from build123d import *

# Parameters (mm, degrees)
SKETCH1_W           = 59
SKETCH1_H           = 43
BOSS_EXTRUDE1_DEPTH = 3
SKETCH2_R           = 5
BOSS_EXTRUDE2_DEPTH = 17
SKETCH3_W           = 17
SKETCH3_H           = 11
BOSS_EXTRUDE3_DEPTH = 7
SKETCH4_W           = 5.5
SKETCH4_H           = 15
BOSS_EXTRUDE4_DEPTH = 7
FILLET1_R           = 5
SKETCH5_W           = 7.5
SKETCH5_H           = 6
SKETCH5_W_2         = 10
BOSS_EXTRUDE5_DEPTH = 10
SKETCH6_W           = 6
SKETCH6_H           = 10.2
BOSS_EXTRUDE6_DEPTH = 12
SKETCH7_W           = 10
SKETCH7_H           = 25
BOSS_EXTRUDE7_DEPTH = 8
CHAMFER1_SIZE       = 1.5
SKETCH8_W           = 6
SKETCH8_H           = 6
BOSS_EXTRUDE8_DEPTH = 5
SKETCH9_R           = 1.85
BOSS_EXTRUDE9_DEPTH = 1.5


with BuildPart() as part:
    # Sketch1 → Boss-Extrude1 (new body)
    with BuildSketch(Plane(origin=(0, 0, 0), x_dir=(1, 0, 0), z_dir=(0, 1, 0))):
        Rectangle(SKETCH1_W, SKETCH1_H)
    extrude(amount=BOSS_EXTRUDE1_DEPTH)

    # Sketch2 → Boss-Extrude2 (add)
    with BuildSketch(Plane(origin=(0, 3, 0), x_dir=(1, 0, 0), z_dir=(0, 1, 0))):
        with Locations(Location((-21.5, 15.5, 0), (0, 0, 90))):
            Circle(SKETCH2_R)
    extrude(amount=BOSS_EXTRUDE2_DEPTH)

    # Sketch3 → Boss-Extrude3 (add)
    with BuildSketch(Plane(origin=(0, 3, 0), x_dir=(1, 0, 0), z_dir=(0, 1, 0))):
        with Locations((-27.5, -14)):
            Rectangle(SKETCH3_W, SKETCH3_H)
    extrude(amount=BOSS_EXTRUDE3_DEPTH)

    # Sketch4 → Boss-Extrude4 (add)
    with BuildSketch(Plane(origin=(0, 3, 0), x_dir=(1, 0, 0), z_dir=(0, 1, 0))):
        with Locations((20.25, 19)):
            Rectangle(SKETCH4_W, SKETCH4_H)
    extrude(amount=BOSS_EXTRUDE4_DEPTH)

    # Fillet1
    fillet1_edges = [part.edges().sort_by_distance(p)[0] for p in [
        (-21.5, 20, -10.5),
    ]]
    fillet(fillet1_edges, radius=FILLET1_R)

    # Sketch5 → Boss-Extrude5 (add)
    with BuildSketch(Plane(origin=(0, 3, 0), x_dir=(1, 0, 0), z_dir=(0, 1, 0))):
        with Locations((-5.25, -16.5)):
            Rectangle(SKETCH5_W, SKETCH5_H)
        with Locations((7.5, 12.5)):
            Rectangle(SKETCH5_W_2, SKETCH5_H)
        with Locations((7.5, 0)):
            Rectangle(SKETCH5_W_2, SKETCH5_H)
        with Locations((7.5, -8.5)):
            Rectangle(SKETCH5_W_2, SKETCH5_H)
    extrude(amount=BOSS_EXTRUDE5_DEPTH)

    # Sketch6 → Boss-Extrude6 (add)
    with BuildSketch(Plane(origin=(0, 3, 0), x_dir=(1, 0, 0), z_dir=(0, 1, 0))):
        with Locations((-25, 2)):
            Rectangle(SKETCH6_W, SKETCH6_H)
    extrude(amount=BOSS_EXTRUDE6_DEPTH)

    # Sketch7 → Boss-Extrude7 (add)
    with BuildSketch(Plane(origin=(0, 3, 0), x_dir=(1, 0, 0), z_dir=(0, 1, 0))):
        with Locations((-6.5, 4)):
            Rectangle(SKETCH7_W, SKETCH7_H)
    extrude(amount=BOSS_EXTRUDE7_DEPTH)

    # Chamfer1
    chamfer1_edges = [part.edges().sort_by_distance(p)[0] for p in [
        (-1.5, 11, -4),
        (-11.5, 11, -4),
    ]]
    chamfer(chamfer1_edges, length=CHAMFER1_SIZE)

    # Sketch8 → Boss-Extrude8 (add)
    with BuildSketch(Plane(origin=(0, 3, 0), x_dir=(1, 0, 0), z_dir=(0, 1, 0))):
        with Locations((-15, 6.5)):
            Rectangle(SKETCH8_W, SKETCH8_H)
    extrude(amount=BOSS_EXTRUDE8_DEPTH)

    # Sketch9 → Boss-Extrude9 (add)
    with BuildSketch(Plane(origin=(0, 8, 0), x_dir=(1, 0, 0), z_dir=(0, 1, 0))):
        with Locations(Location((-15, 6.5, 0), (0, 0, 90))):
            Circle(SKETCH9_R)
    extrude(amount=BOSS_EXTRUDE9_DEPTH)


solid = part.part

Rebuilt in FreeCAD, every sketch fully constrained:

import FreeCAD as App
import Part
import Sketcher
from FreeCAD import Vector


def edges_at(feature, points):
    """Names of the edges that pass closest to the given points."""
    edges = feature.Shape.Edges
    near = lambda p: min(range(len(edges)), key=lambda i: edges[i].distToShape(Part.Vertex(*p))[0])
    return sorted({f"Edge{near(p) + 1}" for p in points})

doc = App.newDocument("Part")
body = doc.addObject("PartDesign::Body", "Body")

sketch1 = body.newObject("Sketcher::SketchObject", "Sketch")
sketch1.AttachmentSupport = (doc.getObject("XZ_Plane"), [""])
sketch1.MapMode = "FlatFace"
sketch1.addGeometry(Part.LineSegment(Vector(-30, -22, 0), Vector(-30, 22, 0)), False)
sketch1.addGeometry(Part.LineSegment(Vector(-30, 22, 0), Vector(30, 22, 0)), False)
sketch1.addGeometry(Part.LineSegment(Vector(30, 22, 0), Vector(30, -22, 0)), False)
sketch1.addGeometry(Part.LineSegment(Vector(30, -22, 0), Vector(-30, -22, 0)), False)
sketch1.addConstraint(Sketcher.Constraint("Coincident", 0, 2, 1, 1))
sketch1.addConstraint(Sketcher.Constraint("Coincident", 1, 2, 2, 1))
sketch1.addConstraint(Sketcher.Constraint("Coincident", 2, 2, 3, 1))
sketch1.addConstraint(Sketcher.Constraint("Coincident", 3, 2, 0, 1))
sketch1.addConstraint(Sketcher.Constraint("Vertical", 0))
sketch1.addConstraint(Sketcher.Constraint("Horizontal", 1))
sketch1.addConstraint(Sketcher.Constraint("Vertical", 2))
sketch1.addConstraint(Sketcher.Constraint("Horizontal", 3))
sketch1.addConstraint(Sketcher.Constraint("Symmetric", 0, 2, 2, 2, -1, 1))
sketch1.addConstraint(Sketcher.Constraint("DistanceX", 1, 1, 1, 2, 59.0))
sketch1.addConstraint(Sketcher.Constraint("DistanceY", 0, 1, 0, 2, 43.0))
pad1 = body.newObject("PartDesign::Pad", "Pad")
pad1.Profile = sketch1
pad1.Length = 3
pad1.Reversed = True

sketch2 = body.newObject("Sketcher::SketchObject", "Sketch001")
sketch2.AttachmentSupport = (doc.getObject("XZ_Plane"), [""])
sketch2.MapMode = "FlatFace"
sketch2.AttachmentOffset = App.Placement(Vector(0, 0, -3), App.Rotation())
sketch2.addGeometry(Part.Circle(Vector(-22, -16, 0), Vector(0, 0, 1), 5), False)
sketch2.addConstraint(Sketcher.Constraint("Diameter", 0, 10.0))
sketch2.addConstraint(Sketcher.Constraint("DistanceX", 0, 3, -1, 1, 21.5))
sketch2.addConstraint(Sketcher.Constraint("DistanceY", 0, 3, -1, 1, 15.5))
pad2 = body.newObject("PartDesign::Pad", "Pad001")
pad2.Profile = sketch2
pad2.Length = 17
pad2.Reversed = True

sketch3 = body.newObject("Sketcher::SketchObject", "Sketch002")
sketch3.AttachmentSupport = (doc.getObject("XZ_Plane"), [""])
sketch3.MapMode = "FlatFace"
sketch3.AttachmentOffset = App.Placement(Vector(0, 0, -3), App.Rotation())
sketch3.addGeometry(Part.LineSegment(Vector(-36, 8, 0), Vector(-36, 20, 0)), False)
sketch3.addGeometry(Part.LineSegment(Vector(-36, 20, 0), Vector(-19, 20, 0)), False)
sketch3.addGeometry(Part.LineSegment(Vector(-19, 20, 0), Vector(-19, 8, 0)), False)
sketch3.addGeometry(Part.LineSegment(Vector(-19, 8, 0), Vector(-36, 8, 0)), False)
sketch3.addConstraint(Sketcher.Constraint("Coincident", 0, 2, 1, 1))
sketch3.addConstraint(Sketcher.Constraint("Coincident", 1, 2, 2, 1))
sketch3.addConstraint(Sketcher.Constraint("Coincident", 2, 2, 3, 1))
sketch3.addConstraint(Sketcher.Constraint("Coincident", 3, 2, 0, 1))
sketch3.addConstraint(Sketcher.Constraint("Vertical", 0))
sketch3.addConstraint(Sketcher.Constraint("Horizontal", 1))
sketch3.addConstraint(Sketcher.Constraint("Vertical", 2))
sketch3.addConstraint(Sketcher.Constraint("Horizontal", 3))
sketch3.addConstraint(Sketcher.Constraint("DistanceX", 1, 1, 1, 2, 17.0))
sketch3.addConstraint(Sketcher.Constraint("DistanceY", 0, 1, 0, 2, 11.0))
sketch3.addConstraint(Sketcher.Constraint("DistanceX", 0, 2, -1, 1, 36.0))
sketch3.addConstraint(Sketcher.Constraint("DistanceY", -1, 1, 0, 2, 19.5))
pad3 = body.newObject("PartDesign::Pad", "Pad002")
pad3.Profile = sketch3
pad3.Length = 7
pad3.Reversed = True

sketch4 = body.newObject("Sketcher::SketchObject", "Sketch003")
sketch4.AttachmentSupport = (doc.getObject("XZ_Plane"), [""])
sketch4.MapMode = "FlatFace"
sketch4.AttachmentOffset = App.Placement(Vector(0, 0, -3), App.Rotation())
sketch4.addGeometry(Part.LineSegment(Vector(18, -26, 0), Vector(18, -12, 0)), False)
sketch4.addGeometry(Part.LineSegment(Vector(18, -12, 0), Vector(23, -12, 0)), False)
sketch4.addGeometry(Part.LineSegment(Vector(23, -12, 0), Vector(23, -26, 0)), False)
sketch4.addGeometry(Part.LineSegment(Vector(23, -26, 0), Vector(18, -26, 0)), False)
sketch4.addConstraint(Sketcher.Constraint("Coincident", 0, 2, 1, 1))
sketch4.addConstraint(Sketcher.Constraint("Coincident", 1, 2, 2, 1))
sketch4.addConstraint(Sketcher.Constraint("Coincident", 2, 2, 3, 1))
sketch4.addConstraint(Sketcher.Constraint("Coincident", 3, 2, 0, 1))
sketch4.addConstraint(Sketcher.Constraint("Vertical", 0))
sketch4.addConstraint(Sketcher.Constraint("Horizontal", 1))
sketch4.addConstraint(Sketcher.Constraint("Vertical", 2))
sketch4.addConstraint(Sketcher.Constraint("Horizontal", 3))
sketch4.addConstraint(Sketcher.Constraint("DistanceY", 0, 1, 0, 2, 15.0))
sketch4.addConstraint(Sketcher.Constraint("DistanceX", 1, 1, 1, 2, 5.5))
sketch4.addConstraint(Sketcher.Constraint("DistanceX", -1, 1, 1, 2, 23.0))
sketch4.addConstraint(Sketcher.Constraint("DistanceY", 0, 2, -1, 1, 11.5))
pad4 = body.newObject("PartDesign::Pad", "Pad003")
pad4.Profile = sketch4
pad4.Length = 7
pad4.Reversed = True
doc.recompute()

fillet = body.newObject("PartDesign::Fillet", "Fillet")
fillet.Base = (pad4, edges_at(pad4, [(-21.5, 20, -10.5)]))
fillet.Radius = 5

sketch5 = body.newObject("Sketcher::SketchObject", "Sketch004")
sketch5.AttachmentSupport = (doc.getObject("XZ_Plane"), [""])
sketch5.MapMode = "FlatFace"
sketch5.AttachmentOffset = App.Placement(Vector(0, 0, -3), App.Rotation())
sketch5.addGeometry(Part.LineSegment(Vector(-9, 14, 0), Vector(-9, 20, 0)), False)
sketch5.addGeometry(Part.LineSegment(Vector(-9, 20, 0), Vector(-2, 20, 0)), False)
sketch5.addGeometry(Part.LineSegment(Vector(-2, 20, 0), Vector(-2, 14, 0)), False)
sketch5.addGeometry(Part.LineSegment(Vector(-2, 14, 0), Vector(-9, 14, 0)), False)
sketch5.addGeometry(Part.LineSegment(Vector(2, -16, 0), Vector(2, -10, 0)), False)
sketch5.addGeometry(Part.LineSegment(Vector(2, -10, 0), Vector(12, -10, 0)), False)
sketch5.addGeometry(Part.LineSegment(Vector(12, -10, 0), Vector(12, -16, 0)), False)
sketch5.addGeometry(Part.LineSegment(Vector(12, -16, 0), Vector(2, -16, 0)), False)
sketch5.addGeometry(Part.LineSegment(Vector(2, -3, 0), Vector(2, 3, 0)), False)
sketch5.addGeometry(Part.LineSegment(Vector(2, 3, 0), Vector(12, 3, 0)), False)
sketch5.addGeometry(Part.LineSegment(Vector(12, 3, 0), Vector(12, -3, 0)), False)
sketch5.addGeometry(Part.LineSegment(Vector(12, -3, 0), Vector(2, -3, 0)), False)
sketch5.addGeometry(Part.LineSegment(Vector(2, 6, 0), Vector(2, 12, 0)), False)
sketch5.addGeometry(Part.LineSegment(Vector(2, 12, 0), Vector(12, 12, 0)), False)
sketch5.addGeometry(Part.LineSegment(Vector(12, 12, 0), Vector(12, 6, 0)), False)
sketch5.addGeometry(Part.LineSegment(Vector(12, 6, 0), Vector(2, 6, 0)), False)
sketch5.addConstraint(Sketcher.Constraint("Coincident", 0, 2, 1, 1))
sketch5.addConstraint(Sketcher.Constraint("Coincident", 1, 2, 2, 1))
sketch5.addConstraint(Sketcher.Constraint("Coincident", 2, 2, 3, 1))
sketch5.addConstraint(Sketcher.Constraint("Coincident", 3, 2, 0, 1))
sketch5.addConstraint(Sketcher.Constraint("Coincident", 4, 2, 5, 1))
sketch5.addConstraint(Sketcher.Constraint("Coincident", 5, 2, 6, 1))
sketch5.addConstraint(Sketcher.Constraint("Coincident", 6, 2, 7, 1))
sketch5.addConstraint(Sketcher.Constraint("Coincident", 7, 2, 4, 1))
sketch5.addConstraint(Sketcher.Constraint("Coincident", 8, 2, 9, 1))
sketch5.addConstraint(Sketcher.Constraint("Coincident", 9, 2, 10, 1))
sketch5.addConstraint(Sketcher.Constraint("Coincident", 10, 2, 11, 1))
sketch5.addConstraint(Sketcher.Constraint("Coincident", 11, 2, 8, 1))
sketch5.addConstraint(Sketcher.Constraint("Coincident", 12, 2, 13, 1))
sketch5.addConstraint(Sketcher.Constraint("Coincident", 13, 2, 14, 1))
sketch5.addConstraint(Sketcher.Constraint("Coincident", 14, 2, 15, 1))
sketch5.addConstraint(Sketcher.Constraint("Coincident", 15, 2, 12, 1))
sketch5.addConstraint(Sketcher.Constraint("Vertical", 0))
sketch5.addConstraint(Sketcher.Constraint("Horizontal", 1))
sketch5.addConstraint(Sketcher.Constraint("Vertical", 2))
sketch5.addConstraint(Sketcher.Constraint("Horizontal", 3))
sketch5.addConstraint(Sketcher.Constraint("Vertical", 4))
sketch5.addConstraint(Sketcher.Constraint("Horizontal", 5))
sketch5.addConstraint(Sketcher.Constraint("Vertical", 6))
sketch5.addConstraint(Sketcher.Constraint("Horizontal", 7))
sketch5.addConstraint(Sketcher.Constraint("Vertical", 8))
sketch5.addConstraint(Sketcher.Constraint("Horizontal", 9))
sketch5.addConstraint(Sketcher.Constraint("Vertical", 10))
sketch5.addConstraint(Sketcher.Constraint("Horizontal", 11))
sketch5.addConstraint(Sketcher.Constraint("Vertical", 12))
sketch5.addConstraint(Sketcher.Constraint("Horizontal", 13))
sketch5.addConstraint(Sketcher.Constraint("Vertical", 14))
sketch5.addConstraint(Sketcher.Constraint("Horizontal", 15))
sketch5.addConstraint(Sketcher.Constraint("Vertical", 7, 2, 8, 2))
sketch5.addConstraint(Sketcher.Constraint("Vertical", 6, 2, 9, 2))
sketch5.addConstraint(Sketcher.Constraint("Vertical", 11, 2, 12, 2))
sketch5.addConstraint(Sketcher.Constraint("Vertical", 10, 2, 13, 2))
sketch5.addConstraint(Sketcher.Constraint("Equal", 2, 4))
sketch5.addConstraint(Sketcher.Constraint("Equal", 6, 8))
sketch5.addConstraint(Sketcher.Constraint("Equal", 10, 12))
sketch5.addConstraint(Sketcher.Constraint("DistanceX", 5, 1, 5, 2, 10.0))
sketch5.addConstraint(Sketcher.Constraint("DistanceY", 0, 1, 0, 2, 6.0))
sketch5.addConstraint(Sketcher.Constraint("DistanceX", 1, 1, 1, 2, 7.5))
sketch5.addConstraint(Sketcher.Constraint("DistanceX", 0, 2, -1, 1, 9.0))
sketch5.addConstraint(Sketcher.Constraint("DistanceY", -1, 1, 8, 2, 3.0))
sketch5.addConstraint(Sketcher.Constraint("DistanceX", 2, 2, 4, 2, 4.0))
sketch5.addConstraint(Sketcher.Constraint("DistanceY", 4, 2, 2, 2, 23.0))
sketch5.addConstraint(Sketcher.Constraint("DistanceY", 12, 2, 2, 2, 2.0))
sketch5.addConstraint(Sketcher.Constraint("DistanceY", -1, 1, 0, 2, 19.5))
pad5 = body.newObject("PartDesign::Pad", "Pad004")
pad5.Profile = sketch5
pad5.Length = 10
pad5.Reversed = True

sketch6 = body.newObject("Sketcher::SketchObject", "Sketch005")
sketch6.AttachmentSupport = (doc.getObject("XZ_Plane"), [""])
sketch6.MapMode = "FlatFace"
sketch6.AttachmentOffset = App.Placement(Vector(0, 0, -3), App.Rotation())
sketch6.addGeometry(Part.LineSegment(Vector(-28, -7, 0), Vector(-28, 3, 0)), False)
sketch6.addGeometry(Part.LineSegment(Vector(-28, 3, 0), Vector(-22, 3, 0)), False)
sketch6.addGeometry(Part.LineSegment(Vector(-22, 3, 0), Vector(-22, -7, 0)), False)
sketch6.addGeometry(Part.LineSegment(Vector(-22, -7, 0), Vector(-28, -7, 0)), False)
sketch6.addConstraint(Sketcher.Constraint("Coincident", 0, 2, 1, 1))
sketch6.addConstraint(Sketcher.Constraint("Coincident", 1, 2, 2, 1))
sketch6.addConstraint(Sketcher.Constraint("Coincident", 2, 2, 3, 1))
sketch6.addConstraint(Sketcher.Constraint("Coincident", 3, 2, 0, 1))
sketch6.addConstraint(Sketcher.Constraint("Vertical", 0))
sketch6.addConstraint(Sketcher.Constraint("Horizontal", 1))
sketch6.addConstraint(Sketcher.Constraint("Vertical", 2))
sketch6.addConstraint(Sketcher.Constraint("Horizontal", 3))
sketch6.addConstraint(Sketcher.Constraint("DistanceX", 1, 1, 1, 2, 6.0))
sketch6.addConstraint(Sketcher.Constraint("DistanceY", 0, 1, 0, 2, 10.2))
sketch6.addConstraint(Sketcher.Constraint("DistanceX", 0, 2, -1, 1, 28.0))
sketch6.addConstraint(Sketcher.Constraint("DistanceY", -1, 1, 0, 2, 3.1))
pad6 = body.newObject("PartDesign::Pad", "Pad005")
pad6.Profile = sketch6
pad6.Length = 12
pad6.Reversed = True

sketch7 = body.newObject("Sketcher::SketchObject", "Sketch006")
sketch7.AttachmentSupport = (doc.getObject("XZ_Plane"), [""])
sketch7.MapMode = "FlatFace"
sketch7.AttachmentOffset = App.Placement(Vector(0, 0, -3), App.Rotation())
sketch7.addGeometry(Part.LineSegment(Vector(-12, -16, 0), Vector(-12, 8, 0)), False)
sketch7.addGeometry(Part.LineSegment(Vector(-12, 8, 0), Vector(-2, 8, 0)), False)
sketch7.addGeometry(Part.LineSegment(Vector(-2, 8, 0), Vector(-2, -16, 0)), False)
sketch7.addGeometry(Part.LineSegment(Vector(-2, -16, 0), Vector(-12, -16, 0)), False)
sketch7.addConstraint(Sketcher.Constraint("Coincident", 0, 2, 1, 1))
sketch7.addConstraint(Sketcher.Constraint("Coincident", 1, 2, 2, 1))
sketch7.addConstraint(Sketcher.Constraint("Coincident", 2, 2, 3, 1))
sketch7.addConstraint(Sketcher.Constraint("Coincident", 3, 2, 0, 1))
sketch7.addConstraint(Sketcher.Constraint("Vertical", 0))
sketch7.addConstraint(Sketcher.Constraint("Horizontal", 1))
sketch7.addConstraint(Sketcher.Constraint("Vertical", 2))
sketch7.addConstraint(Sketcher.Constraint("Horizontal", 3))
sketch7.addConstraint(Sketcher.Constraint("DistanceX", 1, 1, 1, 2, 10.0))
sketch7.addConstraint(Sketcher.Constraint("DistanceY", 0, 1, 0, 2, 25.0))
sketch7.addConstraint(Sketcher.Constraint("DistanceX", 0, 2, -1, 1, 11.5))
sketch7.addConstraint(Sketcher.Constraint("DistanceY", -1, 1, 0, 2, 8.5))
pad7 = body.newObject("PartDesign::Pad", "Pad006")
pad7.Profile = sketch7
pad7.Length = 8
pad7.Reversed = True
doc.recompute()

chamfer = body.newObject("PartDesign::Chamfer", "Chamfer")
chamfer.Base = (pad7, edges_at(pad7, [(-1.5, 11, -4), (-11.5, 11, -4)]))
chamfer.Size = 1.5

sketch8 = body.newObject("Sketcher::SketchObject", "Sketch007")
sketch8.AttachmentSupport = (doc.getObject("XZ_Plane"), [""])
sketch8.MapMode = "FlatFace"
sketch8.AttachmentOffset = App.Placement(Vector(0, 0, -3), App.Rotation())
sketch8.addGeometry(Part.LineSegment(Vector(-18, -10, 0), Vector(-18, -4, 0)), False)
sketch8.addGeometry(Part.LineSegment(Vector(-18, -4, 0), Vector(-12, -4, 0)), False)
sketch8.addGeometry(Part.LineSegment(Vector(-12, -4, 0), Vector(-12, -10, 0)), False)
sketch8.addGeometry(Part.LineSegment(Vector(-12, -10, 0), Vector(-18, -10, 0)), False)
sketch8.addConstraint(Sketcher.Constraint("Coincident", 0, 2, 1, 1))
sketch8.addConstraint(Sketcher.Constraint("Coincident", 1, 2, 2, 1))
sketch8.addConstraint(Sketcher.Constraint("Coincident", 2, 2, 3, 1))
sketch8.addConstraint(Sketcher.Constraint("Coincident", 3, 2, 0, 1))
sketch8.addConstraint(Sketcher.Constraint("Vertical", 0))
sketch8.addConstraint(Sketcher.Constraint("Horizontal", 1))
sketch8.addConstraint(Sketcher.Constraint("Vertical", 2))
sketch8.addConstraint(Sketcher.Constraint("Horizontal", 3))
sketch8.addConstraint(Sketcher.Constraint("Equal", 3, 0))
sketch8.addConstraint(Sketcher.Constraint("DistanceX", 1, 1, 1, 2, 6.0))
sketch8.addConstraint(Sketcher.Constraint("DistanceX", 0, 2, -1, 1, 18.0))
sketch8.addConstraint(Sketcher.Constraint("DistanceY", 0, 2, -1, 1, 3.5))
pad8 = body.newObject("PartDesign::Pad", "Pad007")
pad8.Profile = sketch8
pad8.Length = 5
pad8.Reversed = True

sketch9 = body.newObject("Sketcher::SketchObject", "Sketch008")
sketch9.AttachmentSupport = (doc.getObject("XZ_Plane"), [""])
sketch9.MapMode = "FlatFace"
sketch9.AttachmentOffset = App.Placement(Vector(0, 0, -8), App.Rotation())
sketch9.addGeometry(Part.Circle(Vector(-15, -6.5, 0), Vector(0, 0, 1), 1.9), False)
sketch9.addConstraint(Sketcher.Constraint("Diameter", 0, 3.7))
sketch9.addConstraint(Sketcher.Constraint("DistanceX", 0, 3, -1, 1, 15.0))
sketch9.addConstraint(Sketcher.Constraint("DistanceY", 0, 3, -1, 1, 6.5))
pad9 = body.newObject("PartDesign::Pad", "Pad008")
pad9.Profile = sketch9
pad9.Length = 1.5
pad9.Reversed = True

doc.recompute()
